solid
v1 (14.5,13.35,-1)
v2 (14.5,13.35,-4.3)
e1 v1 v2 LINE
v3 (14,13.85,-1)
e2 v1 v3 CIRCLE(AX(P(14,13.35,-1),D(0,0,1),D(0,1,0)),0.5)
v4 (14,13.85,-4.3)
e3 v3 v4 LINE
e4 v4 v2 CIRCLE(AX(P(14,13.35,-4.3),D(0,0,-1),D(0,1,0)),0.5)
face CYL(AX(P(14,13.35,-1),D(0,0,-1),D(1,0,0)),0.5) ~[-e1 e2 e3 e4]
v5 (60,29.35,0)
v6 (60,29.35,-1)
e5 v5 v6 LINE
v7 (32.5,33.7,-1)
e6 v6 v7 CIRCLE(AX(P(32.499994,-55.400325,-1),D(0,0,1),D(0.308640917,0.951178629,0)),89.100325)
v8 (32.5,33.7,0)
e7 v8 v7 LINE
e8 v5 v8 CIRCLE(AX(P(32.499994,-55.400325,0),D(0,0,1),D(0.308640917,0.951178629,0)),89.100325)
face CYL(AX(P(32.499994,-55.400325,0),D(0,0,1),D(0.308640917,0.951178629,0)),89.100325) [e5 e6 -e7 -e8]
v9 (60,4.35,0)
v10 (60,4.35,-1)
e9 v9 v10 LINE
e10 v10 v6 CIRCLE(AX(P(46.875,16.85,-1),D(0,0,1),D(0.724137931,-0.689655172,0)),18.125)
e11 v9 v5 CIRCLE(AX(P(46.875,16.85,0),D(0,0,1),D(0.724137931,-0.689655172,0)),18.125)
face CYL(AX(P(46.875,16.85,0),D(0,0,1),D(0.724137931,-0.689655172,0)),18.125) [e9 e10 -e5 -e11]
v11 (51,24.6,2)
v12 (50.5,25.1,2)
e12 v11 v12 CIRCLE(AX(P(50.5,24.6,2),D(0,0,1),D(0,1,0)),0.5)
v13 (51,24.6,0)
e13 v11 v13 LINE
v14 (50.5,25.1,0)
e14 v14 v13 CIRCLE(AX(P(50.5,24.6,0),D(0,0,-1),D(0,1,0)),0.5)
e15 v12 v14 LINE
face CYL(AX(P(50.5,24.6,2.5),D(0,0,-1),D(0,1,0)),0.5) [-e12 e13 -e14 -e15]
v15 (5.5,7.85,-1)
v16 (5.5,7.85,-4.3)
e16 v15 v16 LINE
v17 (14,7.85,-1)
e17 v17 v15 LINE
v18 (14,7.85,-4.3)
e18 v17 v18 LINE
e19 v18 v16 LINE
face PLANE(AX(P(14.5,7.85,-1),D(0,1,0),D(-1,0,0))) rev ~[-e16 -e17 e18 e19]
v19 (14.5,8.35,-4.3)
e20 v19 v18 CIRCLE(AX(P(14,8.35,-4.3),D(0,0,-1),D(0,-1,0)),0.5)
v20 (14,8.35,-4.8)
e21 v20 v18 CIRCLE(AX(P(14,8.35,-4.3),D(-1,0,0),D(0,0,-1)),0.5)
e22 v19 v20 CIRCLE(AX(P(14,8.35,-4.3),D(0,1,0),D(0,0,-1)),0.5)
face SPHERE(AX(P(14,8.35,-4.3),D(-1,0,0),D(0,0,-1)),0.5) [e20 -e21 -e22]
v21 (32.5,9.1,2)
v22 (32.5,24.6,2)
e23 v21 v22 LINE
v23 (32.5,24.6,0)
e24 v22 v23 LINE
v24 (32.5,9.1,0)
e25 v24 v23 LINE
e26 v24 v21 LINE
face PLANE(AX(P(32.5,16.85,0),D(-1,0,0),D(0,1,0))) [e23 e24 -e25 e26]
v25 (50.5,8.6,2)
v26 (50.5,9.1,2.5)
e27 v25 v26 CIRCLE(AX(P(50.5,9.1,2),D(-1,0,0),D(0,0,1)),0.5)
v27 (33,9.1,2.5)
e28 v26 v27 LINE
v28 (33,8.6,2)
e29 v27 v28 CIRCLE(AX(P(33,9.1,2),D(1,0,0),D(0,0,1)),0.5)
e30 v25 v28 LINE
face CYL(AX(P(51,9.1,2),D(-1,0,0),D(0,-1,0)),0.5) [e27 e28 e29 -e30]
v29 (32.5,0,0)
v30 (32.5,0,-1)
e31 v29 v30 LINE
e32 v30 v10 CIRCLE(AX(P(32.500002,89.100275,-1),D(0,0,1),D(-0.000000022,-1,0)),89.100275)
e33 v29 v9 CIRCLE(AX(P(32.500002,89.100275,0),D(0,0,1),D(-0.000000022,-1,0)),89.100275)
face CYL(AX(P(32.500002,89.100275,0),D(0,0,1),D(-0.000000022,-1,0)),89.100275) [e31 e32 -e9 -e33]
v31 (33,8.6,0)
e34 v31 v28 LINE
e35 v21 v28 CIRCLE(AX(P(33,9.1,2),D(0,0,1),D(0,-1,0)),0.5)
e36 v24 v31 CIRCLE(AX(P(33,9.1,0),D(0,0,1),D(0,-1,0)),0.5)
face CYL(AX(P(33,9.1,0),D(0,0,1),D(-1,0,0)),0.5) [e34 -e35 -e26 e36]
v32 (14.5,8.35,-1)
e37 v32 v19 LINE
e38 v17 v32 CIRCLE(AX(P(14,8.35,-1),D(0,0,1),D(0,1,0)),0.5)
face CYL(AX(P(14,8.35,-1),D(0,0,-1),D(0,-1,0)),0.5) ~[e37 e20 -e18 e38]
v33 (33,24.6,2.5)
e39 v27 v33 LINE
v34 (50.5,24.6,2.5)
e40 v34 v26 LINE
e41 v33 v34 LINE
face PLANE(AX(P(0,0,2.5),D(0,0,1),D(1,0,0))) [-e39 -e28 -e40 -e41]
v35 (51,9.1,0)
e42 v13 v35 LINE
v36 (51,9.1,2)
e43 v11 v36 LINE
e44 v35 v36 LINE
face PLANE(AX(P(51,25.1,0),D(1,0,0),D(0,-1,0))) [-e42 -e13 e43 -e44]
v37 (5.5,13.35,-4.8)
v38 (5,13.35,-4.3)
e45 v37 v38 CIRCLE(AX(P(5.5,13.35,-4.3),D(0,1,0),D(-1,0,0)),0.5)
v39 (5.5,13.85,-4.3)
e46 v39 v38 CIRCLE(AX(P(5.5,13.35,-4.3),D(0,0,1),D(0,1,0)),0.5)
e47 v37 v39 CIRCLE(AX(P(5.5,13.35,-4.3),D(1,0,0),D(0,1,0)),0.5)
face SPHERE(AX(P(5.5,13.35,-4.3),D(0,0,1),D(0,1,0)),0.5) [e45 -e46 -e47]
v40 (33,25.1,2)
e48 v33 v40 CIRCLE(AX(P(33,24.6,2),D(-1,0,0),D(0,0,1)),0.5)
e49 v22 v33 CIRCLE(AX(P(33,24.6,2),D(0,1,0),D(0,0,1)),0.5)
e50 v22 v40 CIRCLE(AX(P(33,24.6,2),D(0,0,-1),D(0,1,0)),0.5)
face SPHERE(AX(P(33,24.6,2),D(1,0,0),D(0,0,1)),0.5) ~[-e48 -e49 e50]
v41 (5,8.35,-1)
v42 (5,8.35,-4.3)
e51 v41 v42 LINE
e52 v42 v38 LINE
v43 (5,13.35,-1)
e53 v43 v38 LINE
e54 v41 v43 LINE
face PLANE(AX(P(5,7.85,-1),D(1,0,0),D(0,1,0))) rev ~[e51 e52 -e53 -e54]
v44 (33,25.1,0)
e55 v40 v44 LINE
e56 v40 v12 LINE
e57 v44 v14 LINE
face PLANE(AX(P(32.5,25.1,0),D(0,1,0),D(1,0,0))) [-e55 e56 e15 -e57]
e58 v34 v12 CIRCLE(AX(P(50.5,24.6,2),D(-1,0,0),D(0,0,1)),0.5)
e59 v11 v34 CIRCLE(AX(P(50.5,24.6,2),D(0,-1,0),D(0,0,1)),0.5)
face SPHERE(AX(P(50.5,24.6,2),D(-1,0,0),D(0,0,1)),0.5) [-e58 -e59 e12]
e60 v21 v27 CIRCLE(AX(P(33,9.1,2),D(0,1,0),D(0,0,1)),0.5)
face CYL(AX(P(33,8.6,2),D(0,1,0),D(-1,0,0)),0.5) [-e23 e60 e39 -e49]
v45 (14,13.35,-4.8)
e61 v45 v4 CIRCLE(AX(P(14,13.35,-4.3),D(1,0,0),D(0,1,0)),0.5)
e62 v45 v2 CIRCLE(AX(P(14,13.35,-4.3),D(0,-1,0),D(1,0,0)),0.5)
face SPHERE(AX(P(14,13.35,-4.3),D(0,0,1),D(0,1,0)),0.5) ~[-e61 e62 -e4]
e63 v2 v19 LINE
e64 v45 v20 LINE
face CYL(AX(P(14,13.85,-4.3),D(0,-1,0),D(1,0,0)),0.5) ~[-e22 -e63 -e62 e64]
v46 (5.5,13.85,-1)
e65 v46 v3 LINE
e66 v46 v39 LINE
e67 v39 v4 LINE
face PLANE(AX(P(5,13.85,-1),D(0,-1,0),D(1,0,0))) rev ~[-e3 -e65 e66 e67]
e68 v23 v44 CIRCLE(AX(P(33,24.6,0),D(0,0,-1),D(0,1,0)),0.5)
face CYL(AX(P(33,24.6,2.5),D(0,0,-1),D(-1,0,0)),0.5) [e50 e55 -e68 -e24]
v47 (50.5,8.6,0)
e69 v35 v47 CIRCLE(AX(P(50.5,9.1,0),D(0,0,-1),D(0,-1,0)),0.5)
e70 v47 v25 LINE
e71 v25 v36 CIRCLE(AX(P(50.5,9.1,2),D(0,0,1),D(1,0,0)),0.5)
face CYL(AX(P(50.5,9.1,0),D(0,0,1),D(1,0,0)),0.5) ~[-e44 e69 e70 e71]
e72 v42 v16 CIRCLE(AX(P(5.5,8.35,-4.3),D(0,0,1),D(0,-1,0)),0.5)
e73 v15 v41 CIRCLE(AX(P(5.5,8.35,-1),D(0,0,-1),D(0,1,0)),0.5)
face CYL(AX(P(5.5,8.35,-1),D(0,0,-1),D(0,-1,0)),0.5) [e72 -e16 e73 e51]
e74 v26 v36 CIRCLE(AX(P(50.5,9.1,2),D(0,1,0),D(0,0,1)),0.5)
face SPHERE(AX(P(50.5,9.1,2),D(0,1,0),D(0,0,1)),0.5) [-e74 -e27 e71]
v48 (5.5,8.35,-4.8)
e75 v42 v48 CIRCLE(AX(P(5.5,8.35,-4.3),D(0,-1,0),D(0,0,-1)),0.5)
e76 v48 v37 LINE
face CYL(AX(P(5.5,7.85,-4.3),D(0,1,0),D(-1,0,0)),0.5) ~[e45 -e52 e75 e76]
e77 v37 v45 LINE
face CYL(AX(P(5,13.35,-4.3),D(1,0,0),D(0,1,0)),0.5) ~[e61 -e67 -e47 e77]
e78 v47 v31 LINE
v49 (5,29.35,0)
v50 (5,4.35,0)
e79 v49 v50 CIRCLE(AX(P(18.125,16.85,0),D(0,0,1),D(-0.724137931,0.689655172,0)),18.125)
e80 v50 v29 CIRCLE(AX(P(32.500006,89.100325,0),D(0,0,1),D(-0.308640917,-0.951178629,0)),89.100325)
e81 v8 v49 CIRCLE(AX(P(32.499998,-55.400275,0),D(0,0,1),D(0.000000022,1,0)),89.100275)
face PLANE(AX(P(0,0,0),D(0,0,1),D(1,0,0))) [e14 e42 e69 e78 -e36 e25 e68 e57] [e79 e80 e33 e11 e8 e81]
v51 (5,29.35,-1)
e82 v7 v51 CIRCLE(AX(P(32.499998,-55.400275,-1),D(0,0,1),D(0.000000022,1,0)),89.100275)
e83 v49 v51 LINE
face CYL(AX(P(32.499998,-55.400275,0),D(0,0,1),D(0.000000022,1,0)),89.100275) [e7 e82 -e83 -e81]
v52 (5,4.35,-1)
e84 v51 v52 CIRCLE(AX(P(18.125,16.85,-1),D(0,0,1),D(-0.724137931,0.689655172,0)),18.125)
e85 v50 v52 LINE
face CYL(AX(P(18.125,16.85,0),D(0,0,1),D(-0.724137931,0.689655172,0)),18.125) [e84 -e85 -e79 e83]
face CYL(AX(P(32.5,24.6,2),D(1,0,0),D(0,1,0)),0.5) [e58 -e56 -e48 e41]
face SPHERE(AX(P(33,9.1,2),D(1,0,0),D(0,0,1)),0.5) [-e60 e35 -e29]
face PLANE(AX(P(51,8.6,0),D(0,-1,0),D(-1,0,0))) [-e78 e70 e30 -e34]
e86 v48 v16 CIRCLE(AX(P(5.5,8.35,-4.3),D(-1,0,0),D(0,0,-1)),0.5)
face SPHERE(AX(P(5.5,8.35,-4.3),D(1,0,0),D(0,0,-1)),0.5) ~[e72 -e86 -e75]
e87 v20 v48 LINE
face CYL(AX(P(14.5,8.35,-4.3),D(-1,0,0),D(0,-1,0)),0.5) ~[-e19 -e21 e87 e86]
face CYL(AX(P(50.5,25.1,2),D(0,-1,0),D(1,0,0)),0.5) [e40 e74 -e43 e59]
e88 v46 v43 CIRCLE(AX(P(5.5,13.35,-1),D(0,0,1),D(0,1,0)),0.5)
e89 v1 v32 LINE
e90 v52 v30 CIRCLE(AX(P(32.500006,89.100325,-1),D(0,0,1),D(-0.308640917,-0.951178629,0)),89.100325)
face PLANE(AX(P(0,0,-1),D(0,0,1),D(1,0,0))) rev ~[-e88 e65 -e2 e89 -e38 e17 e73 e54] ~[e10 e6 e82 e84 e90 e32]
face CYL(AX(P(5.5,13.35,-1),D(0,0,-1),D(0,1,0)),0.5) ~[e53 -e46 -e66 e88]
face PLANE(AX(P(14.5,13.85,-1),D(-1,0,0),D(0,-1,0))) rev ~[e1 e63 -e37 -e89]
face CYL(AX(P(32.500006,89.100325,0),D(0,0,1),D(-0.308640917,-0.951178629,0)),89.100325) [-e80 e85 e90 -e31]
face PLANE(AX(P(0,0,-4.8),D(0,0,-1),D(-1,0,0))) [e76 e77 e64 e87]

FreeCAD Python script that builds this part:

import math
import FreeCAD as App
import Part
import Sketcher
from FreeCAD import Vector


def edges_at(feature, points):
    """Names of the edges that pass closest to the given points."""
    edges = feature.Shape.Edges
    near = lambda p: min(range(len(edges)), key=lambda i: edges[i].distToShape(Part.Vertex(*p))[0])
    return sorted({f"Edge{near(p) + 1}" for p in points})


def add_polygon(sketch, points):
    """Adds a closed chain of lines whose ends are joined by coincident constraints."""
    first, n = sketch.GeometryCount, len(points)
    for a, b in zip(points, points[1:] + points[:1]):
        sketch.addGeometry(Part.LineSegment(App.Vector(*a, 0), App.Vector(*b, 0)), False)
    for i in range(n):
        sketch.addConstraint(Sketcher.Constraint("Coincident", first + i, 2, first + (i + 1) % n, 1))

doc = App.newDocument("Part")
body = doc.addObject("PartDesign::Body", "Body")

sketch1 = body.newObject("Sketcher::SketchObject", "Sketch")
sketch1.AttachmentSupport = (doc.getObject("XY_Plane"), [""])
sketch1.MapMode = "FlatFace"
add_polygon(sketch1, [(32.5, 25.1), (32.5, 8.6), (51, 8.6), (51, 25.1)])
sketch1.addConstraint(Sketcher.Constraint("Vertical", 0))
sketch1.addConstraint(Sketcher.Constraint("Horizontal", 1))
sketch1.addConstraint(Sketcher.Constraint("Vertical", 2))
sketch1.addConstraint(Sketcher.Constraint("Horizontal", 3))
sketch1.addConstraint(Sketcher.Constraint("DistanceY", 0, 2, 0, 1, 16.5))
sketch1.addConstraint(Sketcher.Constraint("DistanceX", 1, 1, 1, 2, 18.5))
sketch1.addConstraint(Sketcher.Constraint("DistanceX", -1, 1, 1, 2, 51.0))
sketch1.addConstraint(Sketcher.Constraint("DistanceY", -1, 1, 0, 2, 8.6))
pad1 = body.newObject("PartDesign::Pad", "Pad")
pad1.Profile = sketch1
pad1.Type = "TwoLengths"
pad1.Length = 2.5
pad1.Length2 = 1

sketch2 = body.newObject("Sketcher::SketchObject", "Sketch001")
sketch2.AttachmentSupport = (doc.getObject("XY_Plane"), [""])
sketch2.MapMode = "FlatFace"
sketch2.addGeometry(Part.ArcOfCircle(Part.Circle(Vector(46.875, 16.85, 0), Vector(0, 0, 1), 18.125), math.radians(-43.602819), math.radians(43.602819)), False)
sketch2.addGeometry(Part.ArcOfCircle(Part.Circle(Vector(32.5, -55.4003, 0), Vector(0, 0, 1), 89.1003), math.radians(72.022654), math.radians(90)), False)
sketch2.addGeometry(Part.ArcOfCircle(Part.Circle(Vector(32.5, -55.4003, 0), Vector(0, 0, 1), 89.100299), math.radians(90), math.radians(107.977346)), False)
sketch2.addGeometry(Part.ArcOfCircle(Part.Circle(Vector(18.125, 16.85, 0), Vector(0, 0, 1), 18.125), math.radians(136.397181), math.radians(223.602819)), False)
sketch2.addGeometry(Part.ArcOfCircle(Part.Circle(Vector(32.5, 89.1003, 0), Vector(0, 0, 1), 89.1003), math.radians(-107.977346), math.radians(-90)), False)
sketch2.addGeometry(Part.ArcOfCircle(Part.Circle(Vector(32.5, 89.1003, 0), Vector(0, 0, 1), 89.100299), math.radians(-90), math.radians(-72.022654)), False)
add_polygon(sketch2, [(32.5, 8.6), (32.5, 25.1), (51, 25.1), (51, 8.6)])
sketch2.addConstraint(Sketcher.Constraint("Coincident", 0, 2, 1, 1))
sketch2.addConstraint(Sketcher.Constraint("Tangent", 1, 2, 2, 1))
sketch2.addConstraint(Sketcher.Constraint("Coincident", 2, 2, 3, 1))
sketch2.addConstraint(Sketcher.Constraint("Coincident", 3, 2, 4, 1))
sketch2.addConstraint(Sketcher.Constraint("Tangent", 4, 2, 5, 1))
sketch2.addConstraint(Sketcher.Constraint("Coincident", 5, 2, 0, 1))
sketch2.addConstraint(Sketcher.Constraint("Vertical", 6))
sketch2.addConstraint(Sketcher.Constraint("Horizontal", 7))
sketch2.addConstraint(Sketcher.Constraint("Vertical", 8))
sketch2.addConstraint(Sketcher.Constraint("Horizontal", 9))
sketch2.addConstraint(Sketcher.Constraint("Equal", 1, 2))
sketch2.addConstraint(Sketcher.Constraint("Equal", 0, 3))
sketch2.addConstraint(Sketcher.Constraint("Equal", 2, 4))
sketch2.addConstraint(Sketcher.Constraint("Equal", 4, 5))
sketch2.addConstraint(Sketcher.Constraint("PointOnObject", 4, 2, -1))
sketch2.addConstraint(Sketcher.Constraint("Horizontal", 0, 3, 3, 3))
sketch2.addConstraint(Sketcher.Constraint("Horizontal", 0, 2, 2, 2))
sketch2.addConstraint(Sketcher.Constraint("Horizontal", 3, 2, 5, 2))
sketch2.addConstraint(Sketcher.Constraint("Vertical", 5, 3, 1, 2))
sketch2.addConstraint(Sketcher.Constraint("Vertical", 2, 2, 3, 2))
sketch2.addConstraint(Sketcher.Constraint("Vertical", 1, 2, 4, 2))
sketch2.addConstraint(Sketcher.Constraint("Vertical", 4, 2, 6, 2))
sketch2.addConstraint(Sketcher.Constraint("DistanceY", 6, 1, 6, 2, 16.5))
sketch2.addConstraint(Sketcher.Constraint("DistanceY", 0, 3, 6, 2, 8.25))
sketch2.addConstraint(Sketcher.Constraint("DistanceX", 7, 1, 7, 2, 18.5))
sketch2.addConstraint(Sketcher.Constraint("DistanceX", -1, 1, 0, 2, 60.0))
sketch2.addConstraint(Sketcher.Constraint("DistanceX", -1, 1, 2, 2, 5.0))
sketch2.addConstraint(Sketcher.Constraint("Radius", 0, 18.125))
sketch2.addConstraint(Sketcher.Constraint("DistanceY", 3, 2, 2, 2, 25.0))
sketch2.addConstraint(Sketcher.Constraint("DistanceY", -1, 1, 1, 2, 33.7))
pad2 = body.newObject("PartDesign::Pad", "Pad001")
pad2.Profile = sketch2
pad2.Length = 1
pad2.Reversed = True

sketch3 = body.newObject("Sketcher::SketchObject", "Sketch002")
sketch3.AttachmentSupport = (doc.getObject("XY_Plane"), [""])
sketch3.MapMode = "FlatFace"
sketch3.AttachmentOffset = App.Placement(Vector(0, 0, -1), App.Rotation())
add_polygon(sketch3, [(5, 7.85), (5, 13.85), (14.5, 13.85), (14.5, 7.85)])
sketch3.addConstraint(Sketcher.Constraint("Vertical", 0))
sketch3.addConstraint(Sketcher.Constraint("Horizontal", 1))
sketch3.addConstraint(Sketcher.Constraint("Vertical", 2))
sketch3.addConstraint(Sketcher.Constraint("Horizontal", 3))
sketch3.addConstraint(Sketcher.Constraint("DistanceY", 0, 1, 0, 2, 6.0))
sketch3.addConstraint(Sketcher.Constraint("DistanceX", 1, 1, 1, 2, 9.5))
sketch3.addConstraint(Sketcher.Constraint("DistanceX", -1, 1, 0, 2, 5.0))
sketch3.addConstraint(Sketcher.Constraint("DistanceY", -1, 1, 0, 2, 13.85))
pad3 = body.newObject("PartDesign::Pad", "Pad002")
pad3.Profile = sketch3
pad3.Length = 3.8
pad3.Reversed = True
doc.recompute()

fillet = body.newObject("PartDesign::Fillet", "Fillet")
fillet.Base = (pad3, edges_at(pad3, [
    (5, 13.85, -2.9),
    (14.5, 13.85, -2.9),
    (9.75, 13.85, -4.8),
    (9.75, 7.85, -4.8),
    (14.5, 10.85, -4.8),
    (5, 10.85, -4.8),
    (41.75, 25.1, 2.5),
    (51, 16.85, 2.5),
    (41.75, 8.6, 2.5),
    (32.5, 16.85, 2.5),
    (32.5, 25.1, 1.25),
    (51, 25.1, 1.25),
    (32.5, 8.6, 1.25),
    (51, 8.6, 1.25),
    (5, 7.85, -2.9),
    (14.5, 7.85, -2.9),
]))
fillet.Radius = 0.5

doc.recompute()
